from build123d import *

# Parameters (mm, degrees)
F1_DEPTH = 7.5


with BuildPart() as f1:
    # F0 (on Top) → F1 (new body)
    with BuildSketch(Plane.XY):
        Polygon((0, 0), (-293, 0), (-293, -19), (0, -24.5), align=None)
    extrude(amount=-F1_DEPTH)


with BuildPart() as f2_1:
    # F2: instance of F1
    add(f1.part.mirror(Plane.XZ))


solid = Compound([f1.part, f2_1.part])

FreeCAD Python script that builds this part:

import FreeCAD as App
import Part
import Sketcher

V = App.Vector
Q = App.Units.Quantity


def add_polygon(sketch, points):
    """Adds a closed chain of lines whose ends are joined by coincident constraints."""
    first, n = sketch.GeometryCount, len(points)
    for a, b in zip(points, points[1:] + points[:1]):
        sketch.addGeometry(Part.LineSegment(App.Vector(*a, 0), App.Vector(*b, 0)), False)
    for i in range(n):
        sketch.addConstraint(Sketcher.Constraint("Coincident", first + i, 2, first + (i + 1) % n, 1))

doc = App.newDocument("Part")
body = doc.addObject("PartDesign::Body", "Body")

# Sketch on XY plane
sketch1 = body.newObject("Sketcher::SketchObject", "Sketch")
sketch1.AttachmentSupport = (doc.getObject("XY_Plane"), [""])
sketch1.MapMode = "FlatFace"
add_polygon(sketch1, [(0, 0), (-293, 0), (-293, -19), (0, -24)])  # lines 0-3
sketch1.addConstraint([
    Sketcher.Constraint("Horizontal", 0),
    Sketcher.Constraint("Vertical", 1),
    Sketcher.Constraint("Vertical", 3),
    Sketcher.Constraint("Coincident", 3, 2, -1, 1),
    Sketcher.Constraint("DistanceX", 0, 2, 0, 1, Q("293 mm")),
    Sketcher.Constraint("DistanceY", 1, 2, 1, 1, Q("19 mm")),
    Sketcher.Constraint("DistanceY", 3, 1, 3, 2, Q("24.5 mm")),
])
pad1 = body.newObject("PartDesign::Pad", "Pad")
pad1.Profile = sketch1
pad1.Length = 7.5
pad1.Reversed = True
body2 = doc.addObject("PartDesign::Body", "Body001")
doc.recompute()

mirroring = doc.addObject("Part::Mirroring", "Mirroring")
mirroring.Source = body
mirroring.Base = V(0, 0, 0)
mirroring.Normal = V(0, -1, 0)
body2.BaseFeature = mirroring
doc.recompute()
mirroring.Visibility = False

doc.recompute()
